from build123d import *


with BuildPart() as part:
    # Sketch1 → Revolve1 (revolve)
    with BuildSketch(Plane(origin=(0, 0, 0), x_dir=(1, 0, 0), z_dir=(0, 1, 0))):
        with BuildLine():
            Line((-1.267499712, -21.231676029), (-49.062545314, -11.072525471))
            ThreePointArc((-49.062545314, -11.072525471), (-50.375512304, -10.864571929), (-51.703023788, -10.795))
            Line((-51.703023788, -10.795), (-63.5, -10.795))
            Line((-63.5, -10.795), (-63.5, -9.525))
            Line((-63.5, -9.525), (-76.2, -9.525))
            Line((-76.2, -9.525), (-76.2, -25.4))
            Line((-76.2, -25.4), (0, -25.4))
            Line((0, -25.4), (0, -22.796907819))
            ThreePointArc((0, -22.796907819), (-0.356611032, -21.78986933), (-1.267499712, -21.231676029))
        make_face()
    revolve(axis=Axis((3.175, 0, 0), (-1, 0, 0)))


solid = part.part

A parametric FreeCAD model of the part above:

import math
import FreeCAD as App
import Part
import Sketcher
Q = App.Units.Quantity

doc = App.newDocument("Part")
params = doc.addObject("Spreadsheet::Sheet", "Params")
for row, (alias, value) in enumerate([
    ("sketch1_radius", "0.5 in"),
    ("sketch1_width", "3 in"),
    ("sketch1_width2", "0.5 in"),
    ("sketch1_radius2", "0.063 in"),
    ("sketch1_height", "0.05 in"),
    ("revolution_angle", "360 deg"),
], start=1):
    params.set(f"A{row}", alias)
    params.set(f"B{row}", "=" + value)
    params.setAlias(f"B{row}", alias)

body = doc.addObject("PartDesign::Body", "Body")

# Sketch on XZ plane
sketch1 = body.newObject("Sketcher::SketchObject", "Sketch")
sketch1.AttachmentSupport = (doc.getObject("XZ_Plane"), [""])
sketch1.MapMode = "FlatFace"
sketch1.addGeometry(Part.LineSegment(App.Vector(-1.3, 21.2, 0), App.Vector(-49.1, 11.1, 0)), False)
sketch1.addGeometry(Part.ArcOfCircle(Part.Circle(App.Vector(-51.7, 23.5, 0), App.Vector(0, 0, 1), 12.7), math.radians(-90), math.radians(-78)), False)
sketch1.addGeometry(Part.LineSegment(App.Vector(-51.7, 10.8, 0), App.Vector(-63.5, 10.8, 0)), False)
sketch1.addGeometry(Part.LineSegment(App.Vector(-63.5, 10.8, 0), App.Vector(-63.5, 9.5, 0)), False)
sketch1.addGeometry(Part.LineSegment(App.Vector(-63.5, 9.5, 0), App.Vector(-76.2, 9.5, 0)), False)
sketch1.addGeometry(Part.LineSegment(App.Vector(-76.2, 9.5, 0), App.Vector(-76.2, 25.4, 0)), False)
sketch1.addGeometry(Part.LineSegment(App.Vector(-76.2, 25.4, 0), App.Vector(0, 25.4, 0)), False)
sketch1.addGeometry(Part.LineSegment(App.Vector(0, 25.4, 0), App.Vector(0, 22.8, 0)), False)
sketch1.addGeometry(Part.ArcOfCircle(Part.Circle(App.Vector(-1.6, 22.8, 0), App.Vector(0, 0, 1), 1.6), math.radians(-78), math.radians(0)), False)
sketch1.addConstraint(Sketcher.Constraint("Tangent", 0, 2, 1, 2))
sketch1.addConstraint(Sketcher.Constraint("Tangent", 1, 1, 2, 1))
sketch1.addConstraint(Sketcher.Constraint("Coincident", 2, 2, 3, 1))
sketch1.addConstraint(Sketcher.Constraint("Coincident", 3, 2, 4, 1))
sketch1.addConstraint(Sketcher.Constraint("Coincident", 4, 2, 5, 1))
sketch1.addConstraint(Sketcher.Constraint("Coincident", 5, 2, 6, 1))
sketch1.addConstraint(Sketcher.Constraint("Coincident", 6, 2, 7, 1))
sketch1.addConstraint(Sketcher.Constraint("Tangent", 7, 2, 8, 2))
sketch1.addConstraint(Sketcher.Constraint("Tangent", 8, 1, 0, 1))
sketch1.addConstraint(Sketcher.Constraint("Horizontal", 2))
sketch1.addConstraint(Sketcher.Constraint("Vertical", 3))
sketch1.addConstraint(Sketcher.Constraint("Horizontal", 4))
sketch1.addConstraint(Sketcher.Constraint("Vertical", 5))
sketch1.addConstraint(Sketcher.Constraint("Horizontal", 6))
sketch1.addConstraint(Sketcher.Constraint("Vertical", 7))
sketch1.addConstraint(Sketcher.Constraint("PointOnObject", 6, 2, -2))
sketch1.addConstraint(Sketcher.Constraint("Radius", 1, Q("0.5 in")))
sketch1.addConstraint(Sketcher.Constraint("DistanceX", 6, 1, 6, 2, Q("3 in")))
sketch1.addConstraint(Sketcher.Constraint("DistanceX", 4, 2, 4, 1, Q("0.5 in")))
sketch1.addConstraint(Sketcher.Constraint("DistanceY", -1, 1, 5, 2, Q("1 in")))
sketch1.addConstraint(Sketcher.Constraint("Angle", 0, Q("-168 deg")))
sketch1.addConstraint(Sketcher.Constraint("Radius", 8, Q("0.063 in")))
sketch1.addConstraint(Sketcher.Constraint("DistanceY", 3, 2, 3, 1, Q("0.05 in")))
sketch1.addConstraint(Sketcher.Constraint("DistanceY", 5, 1, 5, 2, Q("0.625 in")))
sketch1.addConstraint(Sketcher.Constraint("DistanceX", 2, 2, 2, 1, Q("11.796976 mm")))
sketch1.setExpression("Constraints[16]", "Params.sketch1_radius")
sketch1.setExpression("Constraints[17]", "Params.sketch1_width")
sketch1.setExpression("Constraints[18]", "Params.sketch1_width2")
sketch1.setExpression("Constraints[21]", "Params.sketch1_radius2")
sketch1.setExpression("Constraints[22]", "Params.sketch1_height")
revolution = body.newObject("PartDesign::Revolution", "Revolution")
revolution.Profile = sketch1
revolution.ReferenceAxis = (sketch1, ["H_Axis"])
revolution.setExpression("Angle", "Params.revolution_angle")

doc.recompute()
